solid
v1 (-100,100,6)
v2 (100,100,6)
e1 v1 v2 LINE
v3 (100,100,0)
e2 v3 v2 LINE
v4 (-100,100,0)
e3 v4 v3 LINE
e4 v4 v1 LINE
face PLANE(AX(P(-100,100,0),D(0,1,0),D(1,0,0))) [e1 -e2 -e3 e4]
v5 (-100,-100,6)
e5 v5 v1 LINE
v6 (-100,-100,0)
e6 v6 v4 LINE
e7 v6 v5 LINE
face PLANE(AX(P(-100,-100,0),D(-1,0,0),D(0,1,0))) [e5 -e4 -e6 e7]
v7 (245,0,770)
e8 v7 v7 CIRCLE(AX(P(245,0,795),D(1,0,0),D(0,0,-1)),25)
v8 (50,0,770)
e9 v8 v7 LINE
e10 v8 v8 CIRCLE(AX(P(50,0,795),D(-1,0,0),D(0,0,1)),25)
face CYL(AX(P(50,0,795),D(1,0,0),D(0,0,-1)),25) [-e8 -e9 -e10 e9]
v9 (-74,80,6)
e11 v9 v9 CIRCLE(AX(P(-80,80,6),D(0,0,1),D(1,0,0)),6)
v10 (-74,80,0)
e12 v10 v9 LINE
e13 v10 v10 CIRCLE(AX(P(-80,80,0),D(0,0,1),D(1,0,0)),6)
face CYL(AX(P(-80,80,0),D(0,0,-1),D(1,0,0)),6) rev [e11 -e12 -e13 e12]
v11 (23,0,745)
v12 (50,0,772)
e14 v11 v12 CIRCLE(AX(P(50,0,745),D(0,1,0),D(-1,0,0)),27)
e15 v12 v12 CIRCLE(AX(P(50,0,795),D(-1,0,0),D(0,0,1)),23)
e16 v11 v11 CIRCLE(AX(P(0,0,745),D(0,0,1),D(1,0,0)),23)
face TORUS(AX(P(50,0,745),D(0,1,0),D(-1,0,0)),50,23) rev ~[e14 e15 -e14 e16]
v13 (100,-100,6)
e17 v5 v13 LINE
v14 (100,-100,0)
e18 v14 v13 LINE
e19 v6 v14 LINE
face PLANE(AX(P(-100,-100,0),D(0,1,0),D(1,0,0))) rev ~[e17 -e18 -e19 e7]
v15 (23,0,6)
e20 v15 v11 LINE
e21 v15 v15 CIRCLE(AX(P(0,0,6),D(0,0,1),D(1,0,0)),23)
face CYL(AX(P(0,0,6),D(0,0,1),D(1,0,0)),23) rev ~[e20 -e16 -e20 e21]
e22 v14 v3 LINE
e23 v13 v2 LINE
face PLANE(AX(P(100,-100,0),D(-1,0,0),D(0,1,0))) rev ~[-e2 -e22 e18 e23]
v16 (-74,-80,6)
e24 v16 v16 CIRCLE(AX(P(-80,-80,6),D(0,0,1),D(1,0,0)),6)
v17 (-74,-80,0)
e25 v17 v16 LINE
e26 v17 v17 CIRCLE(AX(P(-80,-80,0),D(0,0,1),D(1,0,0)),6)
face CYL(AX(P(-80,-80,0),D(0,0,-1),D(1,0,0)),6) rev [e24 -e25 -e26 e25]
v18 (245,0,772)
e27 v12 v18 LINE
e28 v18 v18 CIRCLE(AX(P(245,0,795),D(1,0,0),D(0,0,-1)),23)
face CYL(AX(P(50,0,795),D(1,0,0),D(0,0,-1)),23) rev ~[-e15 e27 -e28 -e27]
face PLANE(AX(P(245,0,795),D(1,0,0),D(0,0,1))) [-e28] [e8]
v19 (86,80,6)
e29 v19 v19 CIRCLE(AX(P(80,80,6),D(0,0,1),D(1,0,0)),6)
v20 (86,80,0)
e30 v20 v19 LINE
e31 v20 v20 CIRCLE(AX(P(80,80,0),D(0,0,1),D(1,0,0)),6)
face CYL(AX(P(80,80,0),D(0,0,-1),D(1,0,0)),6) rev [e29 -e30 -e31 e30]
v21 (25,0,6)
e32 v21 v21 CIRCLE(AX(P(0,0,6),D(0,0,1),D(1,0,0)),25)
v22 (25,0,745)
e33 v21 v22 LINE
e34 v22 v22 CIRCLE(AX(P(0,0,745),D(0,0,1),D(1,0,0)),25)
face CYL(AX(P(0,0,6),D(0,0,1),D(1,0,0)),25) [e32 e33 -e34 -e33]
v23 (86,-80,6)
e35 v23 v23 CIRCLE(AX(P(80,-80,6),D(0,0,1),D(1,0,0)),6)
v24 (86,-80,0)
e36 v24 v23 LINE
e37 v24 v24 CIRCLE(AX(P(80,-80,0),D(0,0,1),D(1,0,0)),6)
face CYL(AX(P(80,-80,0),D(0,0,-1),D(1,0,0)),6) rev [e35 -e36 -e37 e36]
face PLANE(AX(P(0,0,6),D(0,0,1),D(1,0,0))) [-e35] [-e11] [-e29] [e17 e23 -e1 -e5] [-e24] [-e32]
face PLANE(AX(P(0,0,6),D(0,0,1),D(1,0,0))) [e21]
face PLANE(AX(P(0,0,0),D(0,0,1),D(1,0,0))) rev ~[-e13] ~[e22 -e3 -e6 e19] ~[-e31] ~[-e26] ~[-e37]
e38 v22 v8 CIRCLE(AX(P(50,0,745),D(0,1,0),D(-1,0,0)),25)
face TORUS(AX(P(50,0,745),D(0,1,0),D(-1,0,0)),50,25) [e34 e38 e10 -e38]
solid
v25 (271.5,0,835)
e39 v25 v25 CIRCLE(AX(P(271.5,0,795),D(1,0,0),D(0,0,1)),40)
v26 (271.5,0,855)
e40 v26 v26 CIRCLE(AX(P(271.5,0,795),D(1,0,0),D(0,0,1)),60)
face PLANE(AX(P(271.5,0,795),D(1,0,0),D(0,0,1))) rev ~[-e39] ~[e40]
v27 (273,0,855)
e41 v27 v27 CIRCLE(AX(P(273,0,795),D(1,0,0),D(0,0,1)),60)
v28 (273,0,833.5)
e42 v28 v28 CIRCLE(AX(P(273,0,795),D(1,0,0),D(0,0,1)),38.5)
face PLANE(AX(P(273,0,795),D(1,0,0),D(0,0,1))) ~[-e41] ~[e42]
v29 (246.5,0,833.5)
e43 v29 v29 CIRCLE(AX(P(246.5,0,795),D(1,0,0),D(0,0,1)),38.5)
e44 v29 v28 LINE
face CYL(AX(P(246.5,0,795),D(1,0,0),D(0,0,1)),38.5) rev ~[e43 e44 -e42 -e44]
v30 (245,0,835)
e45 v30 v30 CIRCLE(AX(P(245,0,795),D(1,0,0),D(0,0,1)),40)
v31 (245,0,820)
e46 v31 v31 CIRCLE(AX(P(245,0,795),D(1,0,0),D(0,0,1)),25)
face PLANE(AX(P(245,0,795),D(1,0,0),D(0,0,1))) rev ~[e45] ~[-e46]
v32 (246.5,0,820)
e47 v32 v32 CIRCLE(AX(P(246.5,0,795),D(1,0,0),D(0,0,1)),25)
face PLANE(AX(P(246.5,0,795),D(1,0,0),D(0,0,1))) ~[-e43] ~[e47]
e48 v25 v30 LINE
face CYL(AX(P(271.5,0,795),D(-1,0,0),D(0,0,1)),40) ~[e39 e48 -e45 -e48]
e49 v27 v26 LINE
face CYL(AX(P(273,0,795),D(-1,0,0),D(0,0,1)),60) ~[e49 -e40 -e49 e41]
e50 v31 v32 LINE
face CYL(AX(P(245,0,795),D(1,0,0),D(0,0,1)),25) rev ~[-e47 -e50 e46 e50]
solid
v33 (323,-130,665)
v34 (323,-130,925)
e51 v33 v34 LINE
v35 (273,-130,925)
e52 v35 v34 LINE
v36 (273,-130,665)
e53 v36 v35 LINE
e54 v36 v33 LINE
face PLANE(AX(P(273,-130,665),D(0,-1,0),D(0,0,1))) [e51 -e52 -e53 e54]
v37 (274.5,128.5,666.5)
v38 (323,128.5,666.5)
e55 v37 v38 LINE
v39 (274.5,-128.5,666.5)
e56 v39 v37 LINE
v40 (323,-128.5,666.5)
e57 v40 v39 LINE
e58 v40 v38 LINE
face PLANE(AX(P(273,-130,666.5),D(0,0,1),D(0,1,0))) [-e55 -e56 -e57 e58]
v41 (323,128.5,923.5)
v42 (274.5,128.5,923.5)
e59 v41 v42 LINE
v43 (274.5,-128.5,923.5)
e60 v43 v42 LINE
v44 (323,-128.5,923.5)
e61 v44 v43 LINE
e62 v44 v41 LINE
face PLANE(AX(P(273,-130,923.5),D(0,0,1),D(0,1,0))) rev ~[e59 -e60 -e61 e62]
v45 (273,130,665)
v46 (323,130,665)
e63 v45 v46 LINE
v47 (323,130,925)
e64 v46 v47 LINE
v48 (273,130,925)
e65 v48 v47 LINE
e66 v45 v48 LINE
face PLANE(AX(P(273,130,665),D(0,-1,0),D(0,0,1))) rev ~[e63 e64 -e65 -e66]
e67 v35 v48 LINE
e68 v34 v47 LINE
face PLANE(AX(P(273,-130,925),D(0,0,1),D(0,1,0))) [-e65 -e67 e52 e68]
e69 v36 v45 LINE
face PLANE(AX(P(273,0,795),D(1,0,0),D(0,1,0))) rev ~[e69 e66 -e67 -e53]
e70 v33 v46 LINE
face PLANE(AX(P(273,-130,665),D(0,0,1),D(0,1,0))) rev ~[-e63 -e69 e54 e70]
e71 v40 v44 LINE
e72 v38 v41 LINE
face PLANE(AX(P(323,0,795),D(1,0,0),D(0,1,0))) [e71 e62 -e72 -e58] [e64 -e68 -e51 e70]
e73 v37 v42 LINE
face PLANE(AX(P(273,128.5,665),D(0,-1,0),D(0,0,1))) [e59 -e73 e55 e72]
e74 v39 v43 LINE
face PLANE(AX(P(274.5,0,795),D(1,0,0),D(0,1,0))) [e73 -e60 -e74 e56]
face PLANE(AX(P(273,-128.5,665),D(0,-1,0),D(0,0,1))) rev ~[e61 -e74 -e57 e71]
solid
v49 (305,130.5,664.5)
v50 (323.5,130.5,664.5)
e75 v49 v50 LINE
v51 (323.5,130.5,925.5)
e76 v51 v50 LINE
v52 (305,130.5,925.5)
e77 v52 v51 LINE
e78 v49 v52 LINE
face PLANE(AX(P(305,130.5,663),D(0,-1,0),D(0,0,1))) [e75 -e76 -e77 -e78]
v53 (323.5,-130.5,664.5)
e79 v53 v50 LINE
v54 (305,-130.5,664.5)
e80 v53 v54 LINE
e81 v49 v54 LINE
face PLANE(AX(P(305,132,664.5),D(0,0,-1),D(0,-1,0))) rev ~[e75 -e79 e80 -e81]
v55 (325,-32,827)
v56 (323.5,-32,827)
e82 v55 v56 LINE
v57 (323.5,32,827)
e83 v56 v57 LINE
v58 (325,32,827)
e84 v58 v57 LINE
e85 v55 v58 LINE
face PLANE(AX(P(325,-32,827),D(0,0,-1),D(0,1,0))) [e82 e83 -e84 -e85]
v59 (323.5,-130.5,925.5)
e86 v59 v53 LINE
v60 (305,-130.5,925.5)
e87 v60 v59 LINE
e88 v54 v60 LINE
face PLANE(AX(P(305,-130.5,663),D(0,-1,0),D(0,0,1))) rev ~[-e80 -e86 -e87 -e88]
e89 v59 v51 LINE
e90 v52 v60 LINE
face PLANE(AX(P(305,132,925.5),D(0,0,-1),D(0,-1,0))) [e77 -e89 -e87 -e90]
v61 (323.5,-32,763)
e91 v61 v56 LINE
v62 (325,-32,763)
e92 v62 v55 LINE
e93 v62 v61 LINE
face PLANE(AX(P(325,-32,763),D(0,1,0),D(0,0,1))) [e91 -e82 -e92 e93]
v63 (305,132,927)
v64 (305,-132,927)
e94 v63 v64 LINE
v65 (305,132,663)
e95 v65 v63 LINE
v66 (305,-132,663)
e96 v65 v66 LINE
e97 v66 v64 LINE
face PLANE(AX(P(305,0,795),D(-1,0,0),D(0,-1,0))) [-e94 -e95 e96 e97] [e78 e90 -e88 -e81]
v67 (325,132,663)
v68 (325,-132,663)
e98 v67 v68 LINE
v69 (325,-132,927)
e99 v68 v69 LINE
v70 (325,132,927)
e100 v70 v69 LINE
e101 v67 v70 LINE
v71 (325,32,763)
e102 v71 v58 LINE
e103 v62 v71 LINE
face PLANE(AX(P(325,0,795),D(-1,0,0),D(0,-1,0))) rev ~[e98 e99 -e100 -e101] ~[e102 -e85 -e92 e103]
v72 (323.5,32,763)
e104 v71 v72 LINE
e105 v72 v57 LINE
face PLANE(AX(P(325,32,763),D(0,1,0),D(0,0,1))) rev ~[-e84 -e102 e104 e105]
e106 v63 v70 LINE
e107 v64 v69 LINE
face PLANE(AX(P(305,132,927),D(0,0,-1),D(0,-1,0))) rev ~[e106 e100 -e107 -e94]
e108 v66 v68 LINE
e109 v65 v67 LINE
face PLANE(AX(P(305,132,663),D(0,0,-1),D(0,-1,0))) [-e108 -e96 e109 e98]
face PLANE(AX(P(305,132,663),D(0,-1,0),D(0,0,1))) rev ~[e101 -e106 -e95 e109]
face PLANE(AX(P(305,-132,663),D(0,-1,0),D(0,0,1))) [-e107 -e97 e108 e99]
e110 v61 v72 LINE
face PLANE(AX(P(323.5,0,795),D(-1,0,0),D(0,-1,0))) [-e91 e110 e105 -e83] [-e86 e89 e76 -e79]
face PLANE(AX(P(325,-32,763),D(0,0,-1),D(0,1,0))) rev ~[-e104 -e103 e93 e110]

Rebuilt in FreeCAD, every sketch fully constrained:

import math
import FreeCAD as App
import Part
import Sketcher
Q = App.Units.Quantity


def faces_at(feature, points):
    """Names of the faces that lie closest to the given points."""
    faces = feature.Shape.Faces
    near = lambda p: min(range(len(faces)), key=lambda i: faces[i].distToShape(Part.Vertex(*p))[0])
    return sorted({f"Face{near(p) + 1}" for p in points})

doc = App.newDocument("Part")
body = doc.addObject("PartDesign::Body", "Body")

# Sketch on XY plane
sketch1 = body.newObject("Sketcher::SketchObject", "Sketch")
sketch1.AttachmentSupport = (doc.getObject("XY_Plane"), [""])
sketch1.MapMode = "FlatFace"
sketch1.addGeometry([
    Part.LineSegment(App.Vector(-100, 100, 0), App.Vector(-100, -100, 0)),  # 0
    Part.LineSegment(App.Vector(-100, -100, 0), App.Vector(100, -100, 0)),  # 1
    Part.LineSegment(App.Vector(100, -100, 0), App.Vector(100, 100, 0)),  # 2
    Part.LineSegment(App.Vector(100, 100, 0), App.Vector(-100, 100, 0)),  # 3
    Part.Circle(App.Vector(-80, -80, 0), App.Vector(0, 0, 1), 6),  # 4
    Part.Circle(App.Vector(80, -80, 0), App.Vector(0, 0, 1), 6),  # 5
    Part.Circle(App.Vector(-80, 80, 0), App.Vector(0, 0, 1), 6),  # 6
    Part.Circle(App.Vector(80, 80, 0), App.Vector(0, 0, 1), 6),  # 7
], False)
sketch1.addConstraint([
    Sketcher.Constraint("Coincident", 0, 2, 1, 1),
    Sketcher.Constraint("Coincident", 1, 2, 2, 1),
    Sketcher.Constraint("Coincident", 2, 2, 3, 1),
    Sketcher.Constraint("Coincident", 3, 2, 0, 1),
    Sketcher.Constraint("Vertical", 0),
    Sketcher.Constraint("Horizontal", 1),
    Sketcher.Constraint("Vertical", 2),
    Sketcher.Constraint("Horizontal", 3),
    Sketcher.Constraint("Equal", 4, 5),
    Sketcher.Constraint("Equal", 5, 6),
    Sketcher.Constraint("Equal", 6, 7),
    Sketcher.Constraint("Symmetric", 5, 3, 6, 3, -1, 1),
    Sketcher.Constraint("Symmetric", 4, 3, 7, 3, -1, 1),
    Sketcher.Constraint("Symmetric", 0, 2, 2, 2, -1, 1),
    Sketcher.Constraint("Symmetric", 4, 3, 5, 3, -2),
    Sketcher.Constraint("Equal", 3, 0),
    Sketcher.Constraint("Diameter", 4, Q("12 mm")),
    Sketcher.Constraint("DistanceX", 1, 1, 1, 2, Q("200 mm")),
    Sketcher.Constraint("DistanceX", 4, 3, -1, 1, Q("80 mm")),
    Sketcher.Constraint("DistanceY", 4, 3, -1, 1, Q("80 mm")),
])
pad1 = body.newObject("PartDesign::Pad", "Pad")
pad1.Profile = sketch1
pad1.Length = 6

# Sketch on XY plane
sketch2 = body.newObject("Sketcher::SketchObject", "Sketch001")
sketch2.AttachmentSupport = (doc.getObject("XY_Plane"), [""])
sketch2.MapMode = "FlatFace"
sketch2.AttachmentOffset = App.Placement(App.Vector(0, 0, 6), App.Rotation())
sketch2.addGeometry([
    Part.Circle(App.Vector(0, 0, 0), App.Vector(0, 0, 1), 25),
    Part.Circle(App.Vector(0, 0, 0), App.Vector(0, 0, 1), 23),
], False)
sketch2.addConstraint([
    Sketcher.Constraint("Coincident", 0, 3, -1, 1),
    Sketcher.Constraint("Coincident", 1, 3, -1, 1),
    Sketcher.Constraint("Diameter", 0, Q("50 mm")),
    Sketcher.Constraint("Diameter", 1, Q("46 mm")),
])

# Sketch on XZ plane
sketch3 = body.newObject("Sketcher::SketchObject", "Sketch002")
sketch3.AttachmentSupport = (doc.getObject("XZ_Plane"), [""])
sketch3.MapMode = "FlatFace"
sketch3.addGeometry([
    Part.LineSegment(App.Vector(0, 6, 0), App.Vector(0, 745, 0)),
    Part.ArcOfCircle(Part.Circle(App.Vector(50, 745, 0), App.Vector(0, 0, 1), 50), math.radians(90), math.radians(180)),
    Part.LineSegment(App.Vector(50, 795, 0), App.Vector(245, 795, 0)),
], False)
sketch3.addConstraint([
    Sketcher.Constraint("Tangent", 0, 2, 1, 2),
    Sketcher.Constraint("Tangent", 1, 1, 2, 1),
    Sketcher.Constraint("Vertical", 0),
    Sketcher.Constraint("Horizontal", 2),
    Sketcher.Constraint("PointOnObject", 0, 1, -2),
    Sketcher.Constraint("Radius", 1, Q("50 mm")),
    Sketcher.Constraint("DistanceX", 2, 1, 2, 2, Q("195 mm")),
    Sketcher.Constraint("DistanceY", 0, 1, 0, 2, Q("739 mm")),
    Sketcher.Constraint("DistanceY", -1, 1, 1, 3, Q("745 mm")),
])
doc.recompute()

additivepipe = body.newObject("PartDesign::AdditivePipe", "AdditivePipe")
additivepipe.Profile = sketch2
additivepipe.Spine = (sketch3, ["Edge1", "Edge2", "Edge3"])
body2 = doc.addObject("PartDesign::Body", "Body001")

# Sketch on XZ plane
sketch4 = body2.newObject("Sketcher::SketchObject", "Sketch003")
sketch4.AttachmentSupport = (doc.getObject("XZ_Plane001"), [""])
sketch4.MapMode = "FlatFace"
sketch4.addGeometry([
    Part.LineSegment(App.Vector(245, 835, 0), App.Vector(245, 820, 0)),  # 0
    Part.LineSegment(App.Vector(245, 820, 0), App.Vector(246.5, 820, 0)),  # 1
    Part.LineSegment(App.Vector(246.5, 820, 0), App.Vector(246.5, 833.5, 0)),  # 2
    Part.LineSegment(App.Vector(246.5, 833.5, 0), App.Vector(273, 833.5, 0)),  # 3
    Part.LineSegment(App.Vector(273, 833.5, 0), App.Vector(273, 855, 0)),  # 4
    Part.LineSegment(App.Vector(273, 855, 0), App.Vector(271.5, 855, 0)),  # 5
    Part.LineSegment(App.Vector(271.5, 855, 0), App.Vector(271.5, 835, 0)),  # 6
    Part.LineSegment(App.Vector(271.5, 835, 0), App.Vector(245, 835, 0)),  # 7
], False)
sketch4.addGeometry(Part.LineSegment(App.Vector(245, 795, 0), App.Vector(273, 795, 0)), True)  # axis
sketch4.addConstraint([
    Sketcher.Constraint("Coincident", 0, 2, 1, 1),
    Sketcher.Constraint("Coincident", 1, 2, 2, 1),
    Sketcher.Constraint("Coincident", 2, 2, 3, 1),
    Sketcher.Constraint("Coincident", 3, 2, 4, 1),
    Sketcher.Constraint("Coincident", 4, 2, 5, 1),
    Sketcher.Constraint("Coincident", 5, 2, 6, 1),
    Sketcher.Constraint("Coincident", 6, 2, 7, 1),
    Sketcher.Constraint("Coincident", 7, 2, 0, 1),
    Sketcher.Constraint("Vertical", 0),
    Sketcher.Constraint("Horizontal", 1),
    Sketcher.Constraint("Vertical", 2),
    Sketcher.Constraint("Horizontal", 3),
    Sketcher.Constraint("Vertical", 4),
    Sketcher.Constraint("Horizontal", 5),
    Sketcher.Constraint("Vertical", 6),
    Sketcher.Constraint("Horizontal", 7),
    Sketcher.Constraint("Horizontal", 8),
    Sketcher.Constraint("Vertical", 7, 2, 8, 1),
    Sketcher.Constraint("Vertical", 4, 2, 8, 2),
    Sketcher.Constraint("Equal", 1, 5),
    Sketcher.Constraint("DistanceX", 8, 1, 8, 2, Q("28 mm")),
    Sketcher.Constraint("DistanceY", 0, 2, 0, 1, Q("15 mm")),
    Sketcher.Constraint("DistanceY", 6, 2, 6, 1, Q("20 mm")),
    Sketcher.Constraint("DistanceX", 1, 1, 1, 2, Q("1.5 mm")),
    Sketcher.Constraint("DistanceY", 2, 1, 2, 2, Q("13.5 mm")),
    Sketcher.Constraint("DistanceX", -1, 1, 0, 2, Q("245 mm")),
    Sketcher.Constraint("DistanceY", -1, 1, 0, 2, Q("820 mm")),
    Sketcher.Constraint("DistanceY", -1, 1, 8, 1, Q("795 mm")),
])
revolution = body2.newObject("PartDesign::Revolution", "Revolution")
revolution.Profile = sketch4
revolution.ReferenceAxis = (sketch4, ["Axis0"])
revolution.Angle = 360
body3 = doc.addObject("PartDesign::Body", "Body002")

# Sketch on YZ plane
sketch5 = body3.newObject("Sketcher::SketchObject", "Sketch004")
sketch5.AttachmentSupport = (doc.getObject("YZ_Plane002"), [""])
sketch5.MapMode = "FlatFace"
sketch5.AttachmentOffset = App.Placement(App.Vector(0, 0, 273), App.Rotation())
sketch5.addGeometry([
    Part.LineSegment(App.Vector(-130, 925, 0), App.Vector(-130, 665, 0)),
    Part.LineSegment(App.Vector(-130, 665, 0), App.Vector(130, 665, 0)),
    Part.LineSegment(App.Vector(130, 665, 0), App.Vector(130, 925, 0)),
    Part.LineSegment(App.Vector(130, 925, 0), App.Vector(-130, 925, 0)),
], False)
sketch5.addConstraint([
    Sketcher.Constraint("Coincident", 0, 2, 1, 1),
    Sketcher.Constraint("Coincident", 1, 2, 2, 1),
    Sketcher.Constraint("Coincident", 2, 2, 3, 1),
    Sketcher.Constraint("Coincident", 3, 2, 0, 1),
    Sketcher.Constraint("Vertical", 0),
    Sketcher.Constraint("Horizontal", 1),
    Sketcher.Constraint("Vertical", 2),
    Sketcher.Constraint("Horizontal", 3),
    Sketcher.Constraint("Equal", 3, 0),
    Sketcher.Constraint("DistanceX", 1, 1, 1, 2, Q("260 mm")),
    Sketcher.Constraint("DistanceX", 0, 2, -1, 1, Q("130 mm")),
    Sketcher.Constraint("DistanceY", -1, 1, 0, 2, Q("665 mm")),
])
pad2 = body3.newObject("PartDesign::Pad", "Pad001")
pad2.Profile = sketch5
pad2.Length = 50
doc.recompute()

thickness = body3.newObject("PartDesign::Thickness", "Thickness")
thickness.Base = (pad2, faces_at(pad2, [(323, 0, 795)]))
thickness.Value = 1.5
thickness.Reversed = True
thickness.Join = "Arc"
body4 = doc.addObject("PartDesign::Body", "Body003")

# Sketch on YZ plane
sketch6 = body4.newObject("Sketcher::SketchObject", "Sketch005")
sketch6.AttachmentSupport = (doc.getObject("YZ_Plane003"), [""])
sketch6.MapMode = "FlatFace"
sketch6.AttachmentOffset = App.Placement(App.Vector(0, 0, 305), App.Rotation())
sketch6.addGeometry([
    Part.LineSegment(App.Vector(132, 927, 0), App.Vector(132, 663, 0)),
    Part.LineSegment(App.Vector(132, 663, 0), App.Vector(-132, 663, 0)),
    Part.LineSegment(App.Vector(-132, 663, 0), App.Vector(-132, 927, 0)),
    Part.LineSegment(App.Vector(-132, 927, 0), App.Vector(132, 927, 0)),
], False)
sketch6.addConstraint([
    Sketcher.Constraint("Coincident", 0, 2, 1, 1),
    Sketcher.Constraint("Coincident", 1, 2, 2, 1),
    Sketcher.Constraint("Coincident", 2, 2, 3, 1),
    Sketcher.Constraint("Coincident", 3, 2, 0, 1),
    Sketcher.Constraint("Vertical", 0),
    Sketcher.Constraint("Horizontal", 1),
    Sketcher.Constraint("Vertical", 2),
    Sketcher.Constraint("Horizontal", 3),
    Sketcher.Constraint("Equal", 3, 0),
    Sketcher.Constraint("DistanceX", 1, 2, 1, 1, Q("264 mm")),
    Sketcher.Constraint("DistanceX", -1, 1, 0, 2, Q("132 mm")),
    Sketcher.Constraint("DistanceY", -1, 1, 0, 2, Q("663 mm")),
])
pad3 = body4.newObject("PartDesign::Pad", "Pad002")
pad3.Profile = sketch6
pad3.Length = 20
doc.recompute()

thickness2 = body4.newObject("PartDesign::Thickness", "Thickness001")
thickness2.Base = (pad3, faces_at(pad3, [(305, 0, 795)]))
thickness2.Value = 1.5
thickness2.Reversed = True
thickness2.Join = "Arc"

# Sketch on YZ plane
sketch7 = body4.newObject("Sketcher::SketchObject", "Sketch006")
sketch7.AttachmentSupport = (doc.getObject("YZ_Plane003"), [""])
sketch7.MapMode = "FlatFace"
sketch7.AttachmentOffset = App.Placement(App.Vector(0, 0, 325), App.Rotation())
sketch7.addGeometry([
    Part.LineSegment(App.Vector(-32, 827, 0), App.Vector(-32, 763, 0)),
    Part.LineSegment(App.Vector(-32, 763, 0), App.Vector(32, 763, 0)),
    Part.LineSegment(App.Vector(32, 763, 0), App.Vector(32, 827, 0)),
    Part.LineSegment(App.Vector(32, 827, 0), App.Vector(-32, 827, 0)),
], False)
sketch7.addConstraint([
    Sketcher.Constraint("Coincident", 0, 2, 1, 1),
    Sketcher.Constraint("Coincident", 1, 2, 2, 1),
    Sketcher.Constraint("Coincident", 2, 2, 3, 1),
    Sketcher.Constraint("Coincident", 3, 2, 0, 1),
    Sketcher.Constraint("Vertical", 0),
    Sketcher.Constraint("Horizontal", 1),
    Sketcher.Constraint("Vertical", 2),
    Sketcher.Constraint("Horizontal", 3),
    Sketcher.Constraint("Equal", 3, 0),
    Sketcher.Constraint("DistanceX", 1, 1, 1, 2, Q("64 mm")),
    Sketcher.Constraint("DistanceX", 0, 2, -1, 1, Q("32 mm")),
    Sketcher.Constraint("DistanceY", -1, 1, 0, 2, Q("763 mm")),
])
pocket1 = body4.newObject("PartDesign::Pocket", "Pocket")
pocket1.Profile = sketch7
pocket1.Type = "ThroughAll"

doc.recompute()
